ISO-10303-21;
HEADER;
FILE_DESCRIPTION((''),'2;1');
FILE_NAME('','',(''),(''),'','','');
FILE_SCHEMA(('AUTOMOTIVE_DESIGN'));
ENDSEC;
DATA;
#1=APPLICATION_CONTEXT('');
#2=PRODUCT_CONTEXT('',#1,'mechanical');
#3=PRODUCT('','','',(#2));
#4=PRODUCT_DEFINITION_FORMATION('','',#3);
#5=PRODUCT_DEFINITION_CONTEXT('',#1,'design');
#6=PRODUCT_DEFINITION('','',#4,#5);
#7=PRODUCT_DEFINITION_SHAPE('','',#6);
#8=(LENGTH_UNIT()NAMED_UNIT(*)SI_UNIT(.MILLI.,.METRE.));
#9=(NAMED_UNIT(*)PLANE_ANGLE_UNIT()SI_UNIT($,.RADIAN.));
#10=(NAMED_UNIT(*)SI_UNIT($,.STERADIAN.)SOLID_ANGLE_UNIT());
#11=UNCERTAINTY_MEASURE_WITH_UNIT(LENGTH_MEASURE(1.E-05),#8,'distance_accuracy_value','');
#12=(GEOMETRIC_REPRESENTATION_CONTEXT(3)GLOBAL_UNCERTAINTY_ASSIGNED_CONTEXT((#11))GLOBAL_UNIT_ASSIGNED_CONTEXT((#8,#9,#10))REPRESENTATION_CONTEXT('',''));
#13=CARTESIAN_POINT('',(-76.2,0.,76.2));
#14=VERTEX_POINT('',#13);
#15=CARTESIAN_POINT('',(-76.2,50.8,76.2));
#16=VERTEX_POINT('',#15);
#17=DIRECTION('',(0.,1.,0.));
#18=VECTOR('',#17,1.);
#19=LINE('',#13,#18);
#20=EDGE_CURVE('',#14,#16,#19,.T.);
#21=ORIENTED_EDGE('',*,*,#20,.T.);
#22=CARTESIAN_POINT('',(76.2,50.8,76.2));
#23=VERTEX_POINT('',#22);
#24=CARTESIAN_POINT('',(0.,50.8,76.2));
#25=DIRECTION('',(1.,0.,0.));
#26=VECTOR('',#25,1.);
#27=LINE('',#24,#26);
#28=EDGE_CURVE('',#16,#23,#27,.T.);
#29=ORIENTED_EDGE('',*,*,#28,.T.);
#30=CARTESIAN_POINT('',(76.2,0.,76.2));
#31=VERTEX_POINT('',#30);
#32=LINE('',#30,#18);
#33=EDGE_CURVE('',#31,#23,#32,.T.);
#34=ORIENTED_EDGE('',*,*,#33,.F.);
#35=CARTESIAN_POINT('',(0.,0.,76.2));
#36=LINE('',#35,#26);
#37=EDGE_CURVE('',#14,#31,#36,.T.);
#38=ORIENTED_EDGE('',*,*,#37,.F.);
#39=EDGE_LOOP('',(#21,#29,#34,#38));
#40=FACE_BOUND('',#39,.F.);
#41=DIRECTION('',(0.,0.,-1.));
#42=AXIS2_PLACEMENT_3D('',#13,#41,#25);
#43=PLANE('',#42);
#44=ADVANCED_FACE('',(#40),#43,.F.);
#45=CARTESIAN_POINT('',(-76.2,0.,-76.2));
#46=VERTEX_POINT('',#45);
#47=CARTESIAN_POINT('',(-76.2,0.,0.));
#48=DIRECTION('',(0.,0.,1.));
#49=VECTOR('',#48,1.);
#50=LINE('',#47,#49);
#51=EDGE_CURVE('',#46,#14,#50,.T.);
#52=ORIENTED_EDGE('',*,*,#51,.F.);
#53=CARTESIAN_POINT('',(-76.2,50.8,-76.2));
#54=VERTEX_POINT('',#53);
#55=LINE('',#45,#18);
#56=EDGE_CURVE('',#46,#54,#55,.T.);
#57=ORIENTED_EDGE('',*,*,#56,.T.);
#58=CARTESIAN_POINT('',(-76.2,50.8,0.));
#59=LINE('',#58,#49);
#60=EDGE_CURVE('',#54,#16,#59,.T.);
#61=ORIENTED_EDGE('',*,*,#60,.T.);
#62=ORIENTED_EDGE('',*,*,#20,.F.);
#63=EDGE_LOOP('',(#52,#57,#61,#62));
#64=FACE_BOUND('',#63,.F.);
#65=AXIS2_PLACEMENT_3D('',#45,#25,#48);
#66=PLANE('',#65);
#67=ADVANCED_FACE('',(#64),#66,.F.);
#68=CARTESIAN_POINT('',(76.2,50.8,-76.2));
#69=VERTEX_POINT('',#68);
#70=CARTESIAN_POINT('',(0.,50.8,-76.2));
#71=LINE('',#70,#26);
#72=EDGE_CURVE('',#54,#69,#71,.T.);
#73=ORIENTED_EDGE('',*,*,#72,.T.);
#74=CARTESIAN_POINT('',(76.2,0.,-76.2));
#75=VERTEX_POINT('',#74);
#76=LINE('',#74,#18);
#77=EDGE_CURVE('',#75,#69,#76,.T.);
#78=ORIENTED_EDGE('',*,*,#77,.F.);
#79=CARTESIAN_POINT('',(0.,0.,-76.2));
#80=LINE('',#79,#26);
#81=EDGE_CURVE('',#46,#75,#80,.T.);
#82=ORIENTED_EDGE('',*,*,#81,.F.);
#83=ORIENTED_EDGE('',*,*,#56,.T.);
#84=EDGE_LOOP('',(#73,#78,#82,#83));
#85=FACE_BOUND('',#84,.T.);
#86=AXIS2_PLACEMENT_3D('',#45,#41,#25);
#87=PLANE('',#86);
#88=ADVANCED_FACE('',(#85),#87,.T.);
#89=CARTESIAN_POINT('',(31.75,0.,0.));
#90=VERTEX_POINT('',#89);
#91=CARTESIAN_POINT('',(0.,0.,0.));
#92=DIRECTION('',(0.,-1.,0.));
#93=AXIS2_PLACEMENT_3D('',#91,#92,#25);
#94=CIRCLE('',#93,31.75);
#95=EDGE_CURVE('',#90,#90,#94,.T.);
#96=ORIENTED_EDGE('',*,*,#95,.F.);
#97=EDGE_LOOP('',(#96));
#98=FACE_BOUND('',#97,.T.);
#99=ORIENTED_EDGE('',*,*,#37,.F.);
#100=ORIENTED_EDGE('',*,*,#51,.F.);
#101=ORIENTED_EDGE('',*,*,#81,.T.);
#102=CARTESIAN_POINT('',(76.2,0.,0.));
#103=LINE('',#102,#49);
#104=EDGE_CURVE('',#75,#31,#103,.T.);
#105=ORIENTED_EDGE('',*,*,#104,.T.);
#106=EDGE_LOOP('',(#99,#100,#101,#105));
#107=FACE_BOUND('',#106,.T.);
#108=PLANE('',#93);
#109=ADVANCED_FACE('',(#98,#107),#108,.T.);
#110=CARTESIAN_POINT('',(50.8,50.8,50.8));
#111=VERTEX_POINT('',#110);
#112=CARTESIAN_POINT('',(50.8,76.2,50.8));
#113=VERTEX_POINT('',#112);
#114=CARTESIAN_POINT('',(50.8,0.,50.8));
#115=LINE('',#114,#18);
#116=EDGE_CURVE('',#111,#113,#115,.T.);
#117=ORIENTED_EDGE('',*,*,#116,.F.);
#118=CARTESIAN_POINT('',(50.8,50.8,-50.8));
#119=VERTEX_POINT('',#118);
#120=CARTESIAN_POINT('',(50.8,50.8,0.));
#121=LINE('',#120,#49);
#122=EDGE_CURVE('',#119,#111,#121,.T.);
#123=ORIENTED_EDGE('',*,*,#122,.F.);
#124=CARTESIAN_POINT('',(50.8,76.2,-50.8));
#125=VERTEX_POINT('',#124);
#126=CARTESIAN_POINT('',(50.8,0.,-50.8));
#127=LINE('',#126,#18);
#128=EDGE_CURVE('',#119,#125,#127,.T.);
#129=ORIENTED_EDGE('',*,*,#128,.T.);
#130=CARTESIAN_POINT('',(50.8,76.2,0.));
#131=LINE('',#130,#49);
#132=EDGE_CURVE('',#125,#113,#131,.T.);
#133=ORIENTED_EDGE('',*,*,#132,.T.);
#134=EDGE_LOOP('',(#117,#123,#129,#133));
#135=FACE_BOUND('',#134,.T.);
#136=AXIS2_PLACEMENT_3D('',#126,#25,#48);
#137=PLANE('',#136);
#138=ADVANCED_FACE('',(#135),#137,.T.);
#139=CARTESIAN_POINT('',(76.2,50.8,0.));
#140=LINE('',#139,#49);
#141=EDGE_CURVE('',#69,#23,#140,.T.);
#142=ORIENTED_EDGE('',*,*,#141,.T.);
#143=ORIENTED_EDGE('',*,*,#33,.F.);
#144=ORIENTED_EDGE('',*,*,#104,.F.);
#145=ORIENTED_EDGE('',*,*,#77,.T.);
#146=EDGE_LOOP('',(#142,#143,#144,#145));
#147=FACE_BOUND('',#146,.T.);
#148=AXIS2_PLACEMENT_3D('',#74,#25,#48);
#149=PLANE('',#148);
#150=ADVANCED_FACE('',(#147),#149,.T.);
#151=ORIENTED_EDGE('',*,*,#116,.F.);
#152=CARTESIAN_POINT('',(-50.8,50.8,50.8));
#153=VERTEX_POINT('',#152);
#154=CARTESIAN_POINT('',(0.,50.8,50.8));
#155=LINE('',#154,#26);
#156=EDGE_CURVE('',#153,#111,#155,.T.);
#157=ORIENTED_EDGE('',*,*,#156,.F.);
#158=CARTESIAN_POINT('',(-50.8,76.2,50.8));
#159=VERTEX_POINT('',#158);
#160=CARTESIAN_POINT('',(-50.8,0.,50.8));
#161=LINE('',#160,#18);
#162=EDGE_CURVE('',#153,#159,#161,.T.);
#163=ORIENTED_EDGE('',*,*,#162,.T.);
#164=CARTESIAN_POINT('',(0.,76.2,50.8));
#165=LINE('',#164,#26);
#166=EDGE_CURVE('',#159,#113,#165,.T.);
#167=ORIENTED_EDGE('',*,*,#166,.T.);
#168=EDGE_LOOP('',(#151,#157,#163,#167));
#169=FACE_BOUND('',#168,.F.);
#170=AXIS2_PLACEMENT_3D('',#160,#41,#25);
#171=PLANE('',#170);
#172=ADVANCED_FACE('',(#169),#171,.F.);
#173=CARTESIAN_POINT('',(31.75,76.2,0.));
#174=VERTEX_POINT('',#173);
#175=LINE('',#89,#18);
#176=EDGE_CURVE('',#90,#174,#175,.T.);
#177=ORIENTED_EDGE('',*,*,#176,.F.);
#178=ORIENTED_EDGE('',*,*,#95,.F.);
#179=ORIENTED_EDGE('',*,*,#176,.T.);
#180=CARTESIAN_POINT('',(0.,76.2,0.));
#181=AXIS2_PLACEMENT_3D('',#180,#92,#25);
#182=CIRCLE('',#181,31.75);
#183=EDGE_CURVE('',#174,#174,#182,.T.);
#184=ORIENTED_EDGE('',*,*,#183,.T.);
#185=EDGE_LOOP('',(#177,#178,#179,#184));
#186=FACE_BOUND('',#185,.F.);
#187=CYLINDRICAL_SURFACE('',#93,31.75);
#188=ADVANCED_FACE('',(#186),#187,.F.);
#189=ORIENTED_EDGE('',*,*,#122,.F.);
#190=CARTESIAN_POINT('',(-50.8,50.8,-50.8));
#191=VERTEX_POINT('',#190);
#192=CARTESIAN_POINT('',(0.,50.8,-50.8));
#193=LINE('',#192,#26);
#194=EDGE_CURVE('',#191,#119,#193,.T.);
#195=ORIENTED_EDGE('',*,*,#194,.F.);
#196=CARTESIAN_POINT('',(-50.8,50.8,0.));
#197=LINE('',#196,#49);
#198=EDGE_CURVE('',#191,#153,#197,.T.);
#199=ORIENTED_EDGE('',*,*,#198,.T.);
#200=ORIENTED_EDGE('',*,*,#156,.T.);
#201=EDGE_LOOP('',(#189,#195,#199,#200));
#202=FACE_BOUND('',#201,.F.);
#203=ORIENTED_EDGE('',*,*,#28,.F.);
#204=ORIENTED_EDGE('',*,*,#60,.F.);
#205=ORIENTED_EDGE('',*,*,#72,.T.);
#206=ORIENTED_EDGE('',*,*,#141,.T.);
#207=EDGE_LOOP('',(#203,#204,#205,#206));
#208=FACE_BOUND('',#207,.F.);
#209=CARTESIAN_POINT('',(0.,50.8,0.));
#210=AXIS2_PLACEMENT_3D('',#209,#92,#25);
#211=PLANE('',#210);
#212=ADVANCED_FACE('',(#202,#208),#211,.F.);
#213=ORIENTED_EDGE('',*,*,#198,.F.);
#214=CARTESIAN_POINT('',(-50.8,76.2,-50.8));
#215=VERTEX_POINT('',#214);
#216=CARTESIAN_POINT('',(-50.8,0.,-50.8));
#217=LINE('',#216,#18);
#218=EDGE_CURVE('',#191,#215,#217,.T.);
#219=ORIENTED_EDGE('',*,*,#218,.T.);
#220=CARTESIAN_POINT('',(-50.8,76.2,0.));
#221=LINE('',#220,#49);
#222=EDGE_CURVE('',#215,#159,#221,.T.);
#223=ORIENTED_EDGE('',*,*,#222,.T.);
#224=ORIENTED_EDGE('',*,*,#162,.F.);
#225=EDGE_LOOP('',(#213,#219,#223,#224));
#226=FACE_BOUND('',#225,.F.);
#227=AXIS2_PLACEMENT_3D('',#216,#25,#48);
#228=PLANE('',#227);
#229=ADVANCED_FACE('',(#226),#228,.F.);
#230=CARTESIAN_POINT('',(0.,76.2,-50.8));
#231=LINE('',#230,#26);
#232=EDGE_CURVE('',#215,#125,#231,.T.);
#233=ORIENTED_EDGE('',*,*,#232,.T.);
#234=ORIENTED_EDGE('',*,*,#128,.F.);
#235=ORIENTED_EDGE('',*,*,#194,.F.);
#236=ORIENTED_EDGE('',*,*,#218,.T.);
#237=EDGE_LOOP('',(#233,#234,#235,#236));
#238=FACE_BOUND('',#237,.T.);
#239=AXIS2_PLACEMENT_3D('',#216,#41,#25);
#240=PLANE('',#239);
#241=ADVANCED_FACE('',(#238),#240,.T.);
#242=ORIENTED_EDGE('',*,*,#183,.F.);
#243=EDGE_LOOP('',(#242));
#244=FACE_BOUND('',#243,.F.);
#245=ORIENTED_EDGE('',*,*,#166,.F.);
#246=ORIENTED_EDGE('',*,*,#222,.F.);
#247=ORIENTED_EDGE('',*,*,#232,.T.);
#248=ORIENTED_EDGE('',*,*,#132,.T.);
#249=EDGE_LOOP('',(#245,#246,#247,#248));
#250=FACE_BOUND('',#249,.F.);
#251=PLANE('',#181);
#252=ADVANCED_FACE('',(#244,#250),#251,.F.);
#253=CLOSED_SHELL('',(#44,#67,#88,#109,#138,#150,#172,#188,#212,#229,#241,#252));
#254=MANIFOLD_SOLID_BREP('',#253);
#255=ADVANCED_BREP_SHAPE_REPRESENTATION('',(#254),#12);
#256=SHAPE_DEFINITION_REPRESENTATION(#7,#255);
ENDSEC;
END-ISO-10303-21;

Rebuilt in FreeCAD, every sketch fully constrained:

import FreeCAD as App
import Part
import Sketcher
from FreeCAD import Vector
Q = App.Units.Quantity

doc = App.newDocument("Part")
body = doc.addObject("PartDesign::Body", "Body")

# Sketch on XZ plane
sketch1 = body.newObject("Sketcher::SketchObject", "Sketch")
sketch1.AttachmentSupport = (doc.getObject("XZ_Plane"), [""])
sketch1.MapMode = "FlatFace"
sketch1.addGeometry(Part.LineSegment(Vector(-51, 51, 0), Vector(-51, -51, 0)), False)
sketch1.addGeometry(Part.LineSegment(Vector(-51, -51, 0), Vector(51, -51, 0)), False)
sketch1.addGeometry(Part.LineSegment(Vector(51, -51, 0), Vector(51, 51, 0)), False)
sketch1.addGeometry(Part.LineSegment(Vector(51, 51, 0), Vector(-51, 51, 0)), False)
sketch1.addGeometry(Part.Circle(Vector(0, 0, 0), Vector(0, 0, 1), 32), False)
sketch1.addConstraint(Sketcher.Constraint("Coincident", 0, 2, 1, 1))
sketch1.addConstraint(Sketcher.Constraint("Coincident", 1, 2, 2, 1))
sketch1.addConstraint(Sketcher.Constraint("Coincident", 2, 2, 3, 1))
sketch1.addConstraint(Sketcher.Constraint("Coincident", 3, 2, 0, 1))
sketch1.addConstraint(Sketcher.Constraint("Vertical", 0))
sketch1.addConstraint(Sketcher.Constraint("Horizontal", 1))
sketch1.addConstraint(Sketcher.Constraint("Vertical", 2))
sketch1.addConstraint(Sketcher.Constraint("Horizontal", 3))
sketch1.addConstraint(Sketcher.Constraint("Coincident", 4, 3, -1, 1))
sketch1.addConstraint(Sketcher.Constraint("Symmetric", 0, 2, 2, 2, -1, 1))
sketch1.addConstraint(Sketcher.Constraint("Equal", 3, 0))
sketch1.addConstraint(Sketcher.Constraint("Diameter", 4, Q("2.5 in")))
sketch1.addConstraint(Sketcher.Constraint("DistanceX", 1, 1, 1, 2, Q("4 in")))
pad1 = body.newObject("PartDesign::Pad", "Pad")
pad1.Profile = sketch1
pad1.Length = Q("3 in")
pad1.Reversed = True

# Sketch on XZ plane
sketch2 = body.newObject("Sketcher::SketchObject", "Sketch001")
sketch2.AttachmentSupport = (doc.getObject("XZ_Plane"), [""])
sketch2.MapMode = "FlatFace"
sketch2.addGeometry(Part.LineSegment(Vector(-76, 76, 0), Vector(-76, -76, 0)), False)
sketch2.addGeometry(Part.LineSegment(Vector(-76, -76, 0), Vector(76, -76, 0)), False)
sketch2.addGeometry(Part.LineSegment(Vector(76, -76, 0), Vector(76, 76, 0)), False)
sketch2.addGeometry(Part.LineSegment(Vector(76, 76, 0), Vector(-76, 76, 0)), False)
sketch2.addGeometry(Part.LineSegment(Vector(51, -51, 0), Vector(-51, -51, 0)), False)
sketch2.addGeometry(Part.LineSegment(Vector(-51, -51, 0), Vector(-51, 51, 0)), False)
sketch2.addGeometry(Part.LineSegment(Vector(-51, 51, 0), Vector(51, 51, 0)), False)
sketch2.addGeometry(Part.LineSegment(Vector(51, 51, 0), Vector(51, -51, 0)), False)
sketch2.addConstraint(Sketcher.Constraint("Coincident", 0, 2, 1, 1))
sketch2.addConstraint(Sketcher.Constraint("Coincident", 1, 2, 2, 1))
sketch2.addConstraint(Sketcher.Constraint("Coincident", 2, 2, 3, 1))
sketch2.addConstraint(Sketcher.Constraint("Coincident", 3, 2, 0, 1))
sketch2.addConstraint(Sketcher.Constraint("Coincident", 4, 2, 5, 1))
sketch2.addConstraint(Sketcher.Constraint("Coincident", 5, 2, 6, 1))
sketch2.addConstraint(Sketcher.Constraint("Coincident", 6, 2, 7, 1))
sketch2.addConstraint(Sketcher.Constraint("Coincident", 7, 2, 4, 1))
sketch2.addConstraint(Sketcher.Constraint("Vertical", 0))
sketch2.addConstraint(Sketcher.Constraint("Horizontal", 1))
sketch2.addConstraint(Sketcher.Constraint("Vertical", 2))
sketch2.addConstraint(Sketcher.Constraint("Horizontal", 3))
sketch2.addConstraint(Sketcher.Constraint("Horizontal", 4))
sketch2.addConstraint(Sketcher.Constraint("Vertical", 5))
sketch2.addConstraint(Sketcher.Constraint("Horizontal", 6))
sketch2.addConstraint(Sketcher.Constraint("Vertical", 7))
sketch2.addConstraint(Sketcher.Constraint("Symmetric", 0, 2, 2, 2, -1, 1))
sketch2.addConstraint(Sketcher.Constraint("Symmetric", 4, 2, 6, 2, -1, 1))
sketch2.addConstraint(Sketcher.Constraint("Equal", 3, 0))
sketch2.addConstraint(Sketcher.Constraint("Equal", 6, 5))
sketch2.addConstraint(Sketcher.Constraint("DistanceX", 1, 1, 1, 2, Q("6 in")))
sketch2.addConstraint(Sketcher.Constraint("DistanceX", 4, 2, 4, 1, Q("4 in")))
pad2 = body.newObject("PartDesign::Pad", "Pad001")
pad2.Profile = sketch2
pad2.Length = Q("2 in")
pad2.Reversed = True

doc.recompute()
